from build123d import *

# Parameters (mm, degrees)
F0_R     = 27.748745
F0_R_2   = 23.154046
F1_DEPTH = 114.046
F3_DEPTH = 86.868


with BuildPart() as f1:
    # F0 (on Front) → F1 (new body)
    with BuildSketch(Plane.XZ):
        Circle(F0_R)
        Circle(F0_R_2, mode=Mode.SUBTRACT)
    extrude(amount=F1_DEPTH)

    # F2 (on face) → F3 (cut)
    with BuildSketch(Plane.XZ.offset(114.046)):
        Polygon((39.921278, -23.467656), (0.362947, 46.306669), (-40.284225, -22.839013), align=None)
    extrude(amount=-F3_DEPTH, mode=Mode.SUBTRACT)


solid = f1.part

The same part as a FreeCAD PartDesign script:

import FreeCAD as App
import Part
import Sketcher
Q = App.Units.Quantity


def add_polygon(sketch, points):
    """Adds a closed chain of lines whose ends are joined by coincident constraints."""
    first, n = sketch.GeometryCount, len(points)
    for a, b in zip(points, points[1:] + points[:1]):
        sketch.addGeometry(Part.LineSegment(App.Vector(*a, 0), App.Vector(*b, 0)), False)
    for i in range(n):
        sketch.addConstraint(Sketcher.Constraint("Coincident", first + i, 2, first + (i + 1) % n, 1))

doc = App.newDocument("Part")
params = doc.addObject("Spreadsheet::Sheet", "Params")
for row, (alias, value) in enumerate([
    ("pad1_length", "4.49 in"),
    ("pocket1_length", "3.42 in"),
], start=1):
    params.set(f"A{row}", alias)
    params.set(f"B{row}", "=" + value)
    params.setAlias(f"B{row}", alias)

body = doc.addObject("PartDesign::Body", "Body")

# Sketch on XZ plane
sketch1 = body.newObject("Sketcher::SketchObject", "Sketch")
sketch1.AttachmentSupport = (doc.getObject("XZ_Plane"), [""])
sketch1.MapMode = "FlatFace"
sketch1.addGeometry([
    Part.Circle(App.Vector(0, 0, 0), App.Vector(0, 0, 1), 28),
    Part.Circle(App.Vector(0, 0, 0), App.Vector(0, 0, 1), 23),
], False)
sketch1.addConstraint([
    Sketcher.Constraint("Coincident", 0, 3, -1, 1),
    Sketcher.Constraint("Coincident", 1, 3, -1, 1),
    Sketcher.Constraint("Diameter", 0, Q("55.49749 mm")),
    Sketcher.Constraint("Diameter", 1, Q("46.308092 mm")),
])
pad1 = body.newObject("PartDesign::Pad", "Pad")
pad1.Profile = sketch1
pad1.setExpression("Length", "Params.pad1_length")

# Sketch on XZ plane
sketch2 = body.newObject("Sketcher::SketchObject", "Sketch001")
sketch2.AttachmentSupport = (doc.getObject("XZ_Plane"), [""])
sketch2.MapMode = "FlatFace"
sketch2.AttachmentOffset = App.Placement(App.Vector(0, 0, 4.49 * 25.4), App.Rotation())
add_polygon(sketch2, [(40, -23), (0, 46), (-40, -23)])  # lines 0-2
sketch2.addConstraint([
    Sketcher.Constraint("Equal", 0, 1),
    Sketcher.Constraint("Equal", 1, 2),
    Sketcher.Constraint("DistanceY", -1, 1, 0, 2, Q("46.306669 mm")),
    Sketcher.Constraint("DistanceX", 1, 2, 0, 2, Q("40.647172 mm")),
    Sketcher.Constraint("DistanceY", 1, 2, 0, 2, Q("69.145682 mm")),
    Sketcher.Constraint("DistanceX", -1, 1, 0, 2, Q("0.362947 mm")),
])
pocket1 = body.newObject("PartDesign::Pocket", "Pocket")
pocket1.Profile = sketch2
pocket1.setExpression("Length", "Params.pocket1_length")

doc.recompute()
